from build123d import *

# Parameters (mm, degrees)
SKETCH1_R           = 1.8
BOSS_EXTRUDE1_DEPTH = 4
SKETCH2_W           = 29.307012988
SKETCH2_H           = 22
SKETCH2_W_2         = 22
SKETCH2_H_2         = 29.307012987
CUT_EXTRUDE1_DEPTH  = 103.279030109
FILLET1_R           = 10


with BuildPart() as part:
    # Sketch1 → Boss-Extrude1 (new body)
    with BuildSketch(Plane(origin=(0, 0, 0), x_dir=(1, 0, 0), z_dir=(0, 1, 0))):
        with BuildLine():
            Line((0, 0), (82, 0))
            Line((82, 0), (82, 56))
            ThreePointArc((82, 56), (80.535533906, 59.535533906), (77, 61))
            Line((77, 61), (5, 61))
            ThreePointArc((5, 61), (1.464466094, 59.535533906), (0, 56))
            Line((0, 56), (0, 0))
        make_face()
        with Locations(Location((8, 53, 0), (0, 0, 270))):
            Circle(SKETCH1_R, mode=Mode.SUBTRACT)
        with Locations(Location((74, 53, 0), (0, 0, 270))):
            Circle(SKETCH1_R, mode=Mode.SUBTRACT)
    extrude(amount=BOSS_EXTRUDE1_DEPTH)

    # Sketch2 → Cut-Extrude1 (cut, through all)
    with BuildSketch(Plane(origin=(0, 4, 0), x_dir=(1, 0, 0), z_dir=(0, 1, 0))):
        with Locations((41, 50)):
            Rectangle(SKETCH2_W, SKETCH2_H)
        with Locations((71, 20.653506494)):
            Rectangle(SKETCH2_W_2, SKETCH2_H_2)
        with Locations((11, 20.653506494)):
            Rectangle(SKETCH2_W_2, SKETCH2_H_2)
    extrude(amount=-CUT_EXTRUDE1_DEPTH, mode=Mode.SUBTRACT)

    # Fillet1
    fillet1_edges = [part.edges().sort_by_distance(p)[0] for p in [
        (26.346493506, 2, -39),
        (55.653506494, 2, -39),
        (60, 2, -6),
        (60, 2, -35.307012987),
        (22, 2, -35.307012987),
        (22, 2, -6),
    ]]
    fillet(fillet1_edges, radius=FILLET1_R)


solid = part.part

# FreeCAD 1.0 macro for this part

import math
import FreeCAD as App
import Part
import Sketcher

V = App.Vector


def edges_at(feature, points):
    """Names of the edges that pass closest to the given points."""
    edges = feature.Shape.Edges
    near = lambda p: min(range(len(edges)), key=lambda i: edges[i].distToShape(Part.Vertex(*p))[0])
    return sorted({f"Edge{near(p) + 1}" for p in points})

doc = App.newDocument("Part")
body = doc.addObject("PartDesign::Body", "Body")

# Sketch on XZ plane
sketch1 = body.newObject("Sketcher::SketchObject", "Sketch")
sketch1.AttachmentSupport = (doc.getObject("XZ_Plane"), [""])
sketch1.MapMode = "FlatFace"
sketch1.addGeometry([
    Part.LineSegment(V(0, 0, 0), V(82, 0, 0)),  # 0
    Part.LineSegment(V(82, 0, 0), V(82, -56, 0)),  # 1
    Part.ArcOfCircle(Part.Circle(V(77, -56, 0), V(0, 0, 1), 5), math.radians(-90), math.radians(0)),  # 2
    Part.LineSegment(V(77, -61, 0), V(5, -61, 0)),  # 3
    Part.ArcOfCircle(Part.Circle(V(5, -56, 0), V(0, 0, 1), 5), math.radians(180), math.radians(270)),  # 4
    Part.LineSegment(V(0, -56, 0), V(0, 0, 0)),  # 5
    Part.Circle(V(8, -53, 0), V(0, 0, 1), 1.8),  # 6
    Part.Circle(V(74, -53, 0), V(0, 0, 1), 1.8),  # 7
], False)
sketch1.addConstraint([
    Sketcher.Constraint("Coincident", 0, 2, 1, 1),
    Sketcher.Constraint("Tangent", 1, 2, 2, 2),
    Sketcher.Constraint("Tangent", 2, 1, 3, 1),
    Sketcher.Constraint("Tangent", 3, 2, 4, 2),
    Sketcher.Constraint("Tangent", 4, 1, 5, 1),
    Sketcher.Constraint("Coincident", 5, 2, 0, 1),
    Sketcher.Constraint("Horizontal", 0),
    Sketcher.Constraint("Vertical", 1),
    Sketcher.Constraint("Horizontal", 3),
    Sketcher.Constraint("Vertical", 5),
    Sketcher.Constraint("Coincident", 5, 2, -1, 1),
    Sketcher.Constraint("Equal", 2, 4),
    Sketcher.Constraint("Equal", 6, 7),
    Sketcher.Constraint("Horizontal", 6, 3, 7, 3),
    Sketcher.Constraint("Radius", 2, 5.0),
    Sketcher.Constraint("Diameter", 6, 3.6),
    Sketcher.Constraint("DistanceX", 0, 1, 0, 2, 82.0),
    Sketcher.Constraint("DistanceY", 1, 2, 1, 1, 56.0),
    Sketcher.Constraint("DistanceX", -1, 1, 6, 3, 8.0),
    Sketcher.Constraint("DistanceY", 6, 3, -1, 1, 53.0),
    Sketcher.Constraint("DistanceX", -1, 1, 7, 3, 74.0),
])
pad1 = body.newObject("PartDesign::Pad", "Pad")
pad1.Profile = sketch1
pad1.Length = 4
pad1.Reversed = True

# Sketch on XZ plane
sketch2 = body.newObject("Sketcher::SketchObject", "Sketch001")
sketch2.AttachmentSupport = (doc.getObject("XZ_Plane"), [""])
sketch2.MapMode = "FlatFace"
sketch2.AttachmentOffset = App.Placement(V(0, 0, -4), App.Rotation())
sketch2.addGeometry([
    Part.LineSegment(V(26, -61, 0), V(26, -39, 0)),  # 0
    Part.LineSegment(V(26, -39, 0), V(56, -39, 0)),  # 1
    Part.LineSegment(V(56, -39, 0), V(56, -61, 0)),  # 2
    Part.LineSegment(V(56, -61, 0), V(26, -61, 0)),  # 3
    Part.LineSegment(V(60, -35, 0), V(60, -6, 0)),  # 4
    Part.LineSegment(V(60, -6, 0), V(82, -6, 0)),  # 5
    Part.LineSegment(V(82, -6, 0), V(82, -35, 0)),  # 6
    Part.LineSegment(V(82, -35, 0), V(60, -35, 0)),  # 7
    Part.LineSegment(V(0, -35, 0), V(0, -6, 0)),  # 8
    Part.LineSegment(V(0, -6, 0), V(22, -6, 0)),  # 9
    Part.LineSegment(V(22, -6, 0), V(22, -35, 0)),  # 10
    Part.LineSegment(V(22, -35, 0), V(0, -35, 0)),  # 11
], False)
sketch2.addConstraint([
    Sketcher.Constraint("Coincident", 0, 2, 1, 1),
    Sketcher.Constraint("Coincident", 1, 2, 2, 1),
    Sketcher.Constraint("Coincident", 2, 2, 3, 1),
    Sketcher.Constraint("Coincident", 3, 2, 0, 1),
    Sketcher.Constraint("Coincident", 4, 2, 5, 1),
    Sketcher.Constraint("Coincident", 5, 2, 6, 1),
    Sketcher.Constraint("Coincident", 6, 2, 7, 1),
    Sketcher.Constraint("Coincident", 7, 2, 4, 1),
    Sketcher.Constraint("Coincident", 8, 2, 9, 1),
    Sketcher.Constraint("Coincident", 9, 2, 10, 1),
    Sketcher.Constraint("Coincident", 10, 2, 11, 1),
    Sketcher.Constraint("Coincident", 11, 2, 8, 1),
    Sketcher.Constraint("Vertical", 0),
    Sketcher.Constraint("Horizontal", 1),
    Sketcher.Constraint("Vertical", 2),
    Sketcher.Constraint("Horizontal", 3),
    Sketcher.Constraint("Vertical", 4),
    Sketcher.Constraint("Horizontal", 5),
    Sketcher.Constraint("Vertical", 6),
    Sketcher.Constraint("Horizontal", 7),
    Sketcher.Constraint("Vertical", 8),
    Sketcher.Constraint("Horizontal", 9),
    Sketcher.Constraint("Vertical", 10),
    Sketcher.Constraint("Horizontal", 11),
    Sketcher.Constraint("PointOnObject", 8, 2, -2),
    Sketcher.Constraint("Horizontal", 5, 2, 8, 2),
    Sketcher.Constraint("Horizontal", 7, 2, 10, 2),
    Sketcher.Constraint("Equal", 7, 9),
    Sketcher.Constraint("Equal", 11, 0),
    Sketcher.Constraint("Equal", 3, 4),
    Sketcher.Constraint("DistanceX", 5, 1, 5, 2, 22.0),
    Sketcher.Constraint("DistanceY", 0, 2, -1, 1, 39.0),
    Sketcher.Constraint("DistanceX", -1, 1, 4, 2, 60.0),
    Sketcher.Constraint("DistanceY", 4, 2, -1, 1, 6.0),
    Sketcher.Constraint("DistanceX", 1, 1, 1, 2, 29.307013),
    Sketcher.Constraint("DistanceX", -1, 1, 0, 2, 26.346494),
])
pocket1 = body.newObject("PartDesign::Pocket", "Pocket")
pocket1.Profile = sketch2
pocket1.Type = "ThroughAll"
pocket1.Reversed = True
doc.recompute()

fillet = body.newObject("PartDesign::Fillet", "Fillet")
fillet.Base = (pocket1, edges_at(pocket1, [
    (26.346, 2, -39),
    (55.654, 2, -39),
    (60, 2, -6),
    (60, 2, -35.307),
    (22, 2, -35.307),
    (22, 2, -6),
]))
fillet.Radius = 10

doc.recompute()
